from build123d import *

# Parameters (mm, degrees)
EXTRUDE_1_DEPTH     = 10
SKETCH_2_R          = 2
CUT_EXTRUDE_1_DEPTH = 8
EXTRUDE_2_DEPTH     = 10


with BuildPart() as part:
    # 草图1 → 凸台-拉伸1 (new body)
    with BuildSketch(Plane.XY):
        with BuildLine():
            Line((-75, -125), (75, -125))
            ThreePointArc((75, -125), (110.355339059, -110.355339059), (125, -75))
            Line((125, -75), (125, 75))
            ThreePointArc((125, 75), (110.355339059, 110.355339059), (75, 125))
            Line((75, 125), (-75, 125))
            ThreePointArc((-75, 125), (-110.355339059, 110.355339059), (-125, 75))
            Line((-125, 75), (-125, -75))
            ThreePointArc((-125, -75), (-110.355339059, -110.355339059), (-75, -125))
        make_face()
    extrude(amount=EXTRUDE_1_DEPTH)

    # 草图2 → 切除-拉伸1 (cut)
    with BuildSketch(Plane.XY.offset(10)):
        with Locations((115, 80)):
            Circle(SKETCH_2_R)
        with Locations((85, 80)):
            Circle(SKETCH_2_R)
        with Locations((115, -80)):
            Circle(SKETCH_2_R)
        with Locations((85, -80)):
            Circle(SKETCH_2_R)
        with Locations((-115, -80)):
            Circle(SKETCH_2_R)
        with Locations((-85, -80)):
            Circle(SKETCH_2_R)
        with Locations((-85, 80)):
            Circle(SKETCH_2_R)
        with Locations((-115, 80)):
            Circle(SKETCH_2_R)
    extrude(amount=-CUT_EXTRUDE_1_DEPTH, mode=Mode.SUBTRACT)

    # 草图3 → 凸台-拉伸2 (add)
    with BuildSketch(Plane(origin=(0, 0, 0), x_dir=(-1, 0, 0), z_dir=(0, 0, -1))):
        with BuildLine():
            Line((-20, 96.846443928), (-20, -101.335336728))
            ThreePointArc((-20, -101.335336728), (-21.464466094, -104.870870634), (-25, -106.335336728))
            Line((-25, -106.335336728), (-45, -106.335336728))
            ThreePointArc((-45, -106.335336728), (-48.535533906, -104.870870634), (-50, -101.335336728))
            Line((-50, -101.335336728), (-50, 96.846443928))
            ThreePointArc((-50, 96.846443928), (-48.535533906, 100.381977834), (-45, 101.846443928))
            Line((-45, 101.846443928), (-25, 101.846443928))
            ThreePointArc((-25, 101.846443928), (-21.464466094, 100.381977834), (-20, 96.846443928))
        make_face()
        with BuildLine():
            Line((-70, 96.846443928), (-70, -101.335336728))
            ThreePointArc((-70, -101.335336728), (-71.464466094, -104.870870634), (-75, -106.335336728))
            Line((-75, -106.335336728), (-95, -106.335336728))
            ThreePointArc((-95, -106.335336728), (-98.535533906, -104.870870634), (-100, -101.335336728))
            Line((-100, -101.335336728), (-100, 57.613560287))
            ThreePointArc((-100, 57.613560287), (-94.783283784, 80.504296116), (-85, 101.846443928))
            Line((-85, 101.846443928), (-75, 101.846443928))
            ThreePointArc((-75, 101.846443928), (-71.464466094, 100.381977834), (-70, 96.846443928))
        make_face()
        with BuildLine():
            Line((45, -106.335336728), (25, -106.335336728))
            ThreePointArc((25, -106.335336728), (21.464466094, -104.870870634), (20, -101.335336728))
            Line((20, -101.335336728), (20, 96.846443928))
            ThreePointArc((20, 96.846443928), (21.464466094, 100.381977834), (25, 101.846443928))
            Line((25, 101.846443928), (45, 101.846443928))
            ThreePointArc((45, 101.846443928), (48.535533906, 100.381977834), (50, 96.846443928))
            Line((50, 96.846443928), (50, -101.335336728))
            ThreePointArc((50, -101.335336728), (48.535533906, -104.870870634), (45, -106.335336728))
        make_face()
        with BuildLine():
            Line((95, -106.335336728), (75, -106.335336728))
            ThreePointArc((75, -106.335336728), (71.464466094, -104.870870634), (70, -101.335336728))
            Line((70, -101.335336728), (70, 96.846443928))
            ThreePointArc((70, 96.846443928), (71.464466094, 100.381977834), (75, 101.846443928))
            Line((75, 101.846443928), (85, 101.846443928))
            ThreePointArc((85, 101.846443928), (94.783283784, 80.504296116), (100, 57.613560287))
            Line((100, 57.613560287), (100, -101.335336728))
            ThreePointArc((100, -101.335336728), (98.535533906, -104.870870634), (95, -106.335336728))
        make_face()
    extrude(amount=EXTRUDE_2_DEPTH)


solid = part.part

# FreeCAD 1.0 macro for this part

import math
import FreeCAD as App
import Part
import Sketcher
from FreeCAD import Vector
Q = App.Units.Quantity

doc = App.newDocument("Part")
body = doc.addObject("PartDesign::Body", "Body")

sketch1 = doc.addObject("Sketcher::SketchObject", "Sketch")
body.addObject(sketch1)
sketch1.AttachmentSupport = (doc.XY_Plane, [""])
sketch1.MapMode = "FlatFace"
sketch1.addGeometry([
    Part.LineSegment(Vector(-75, -125, 0), Vector(75, -125, 0)),
    Part.ArcOfCircle(Part.Circle(Vector(75, -75, 0), Vector(0, 0, 1), 50), math.radians(-90), math.radians(0)),
    Part.LineSegment(Vector(125, -75, 0), Vector(125, 75, 0)),
    Part.ArcOfCircle(Part.Circle(Vector(75, 75, 0), Vector(0, 0, 1), 50), math.radians(0), math.radians(90)),
    Part.LineSegment(Vector(75, 125, 0), Vector(-75, 125, 0)),
    Part.ArcOfCircle(Part.Circle(Vector(-75, 75, 0), Vector(0, 0, 1), 50), math.radians(90), math.radians(180)),
    Part.LineSegment(Vector(-125, 75, 0), Vector(-125, -75, 0)),
    Part.ArcOfCircle(Part.Circle(Vector(-75, -75, 0), Vector(0, 0, 1), 50), math.radians(-180), math.radians(-90)),
], False)
sketch1.addConstraint([
    Sketcher.Constraint("Tangent", 0, 2, 1, 1),
    Sketcher.Constraint("Tangent", 1, 2, 2, 1),
    Sketcher.Constraint("Tangent", 2, 2, 3, 1),
    Sketcher.Constraint("Tangent", 3, 2, 4, 1),
    Sketcher.Constraint("Tangent", 4, 2, 5, 1),
    Sketcher.Constraint("Tangent", 5, 2, 6, 1),
    Sketcher.Constraint("Tangent", 6, 2, 7, 1),
    Sketcher.Constraint("Tangent", 7, 2, 0, 1),
    Sketcher.Constraint("Horizontal", 0),
    Sketcher.Constraint("Vertical", 2),
    Sketcher.Constraint("Horizontal", 4),
    Sketcher.Constraint("Vertical", 6),
    Sketcher.Constraint("Equal", 1, 3),
    Sketcher.Constraint("Equal", 3, 5),
    Sketcher.Constraint("Equal", 5, 7),
    Sketcher.Constraint("Symmetric", 1, 3, 5, 3, -1, 1),
    Sketcher.Constraint("Equal", 4, 2),
    Sketcher.Constraint("Radius", 1, Q("50 mm")),
    Sketcher.Constraint("DistanceX", 0, 1, 0, 2, Q("150 mm")),
])
pad1 = doc.addObject("PartDesign::Pad", "Pad")
body.addObject(pad1)
pad1.Profile = sketch1
pad1.Length = 10

sketch2 = doc.addObject("Sketcher::SketchObject", "Sketch001")
body.addObject(sketch2)
sketch2.AttachmentSupport = (doc.XY_Plane, [""])
sketch2.MapMode = "FlatFace"
sketch2.AttachmentOffset = App.Placement(Vector(0, 0, 10), App.Rotation())
sketch2.addGeometry([
    Part.Circle(Vector(115, 80, 0), Vector(0, 0, 1), 2),
    Part.Circle(Vector(85, 80, 0), Vector(0, 0, 1), 2),
    Part.Circle(Vector(115, -80, 0), Vector(0, 0, 1), 2),
    Part.Circle(Vector(85, -80, 0), Vector(0, 0, 1), 2),
    Part.Circle(Vector(-115, -80, 0), Vector(0, 0, 1), 2),
    Part.Circle(Vector(-85, -80, 0), Vector(0, 0, 1), 2),
    Part.Circle(Vector(-85, 80, 0), Vector(0, 0, 1), 2),
    Part.Circle(Vector(-115, 80, 0), Vector(0, 0, 1), 2),
], False)
sketch2.addConstraint([
    Sketcher.Constraint("Equal", 0, 1),
    Sketcher.Constraint("Equal", 1, 2),
    Sketcher.Constraint("Equal", 2, 3),
    Sketcher.Constraint("Equal", 3, 4),
    Sketcher.Constraint("Equal", 4, 5),
    Sketcher.Constraint("Equal", 5, 6),
    Sketcher.Constraint("Equal", 6, 7),
    Sketcher.Constraint("Symmetric", 0, 3, 4, 3, -1, 1),
    Sketcher.Constraint("Symmetric", 1, 3, 5, 3, -1, 1),
    Sketcher.Constraint("Symmetric", 3, 3, 6, 3, -1, 1),
    Sketcher.Constraint("Symmetric", 2, 3, 7, 3, -1, 1),
    Sketcher.Constraint("Symmetric", 2, 3, 4, 3, -2),
    Sketcher.Constraint("Symmetric", 3, 3, 5, 3, -2),
    Sketcher.Constraint("Horizontal", 0, 3, 1, 3),
    Sketcher.Constraint("Diameter", 0, Q("4 mm")),
    Sketcher.Constraint("DistanceX", -1, 1, 0, 3, Q("115 mm")),
    Sketcher.Constraint("DistanceY", -1, 1, 0, 3, Q("80 mm")),
    Sketcher.Constraint("DistanceX", -1, 1, 1, 3, Q("85 mm")),
])
pocket1 = doc.addObject("PartDesign::Pocket", "Pocket")
body.addObject(pocket1)
pocket1.Profile = sketch2
pocket1.Length = 8

sketch3 = doc.addObject("Sketcher::SketchObject", "Sketch002")
body.addObject(sketch3)
sketch3.AttachmentSupport = (doc.XY_Plane, [""])
sketch3.MapMode = "FlatFace"
sketch3.addGeometry([
    Part.LineSegment(Vector(20, -101, 0), Vector(20, 97, 0)),
    Part.ArcOfCircle(Part.Circle(Vector(25, 97, 0), Vector(0, 0, 1), 5), math.radians(90), math.radians(180)),
    Part.LineSegment(Vector(25, 102, 0), Vector(45, 102, 0)),
    Part.ArcOfCircle(Part.Circle(Vector(45, 97, 0), Vector(0, 0, 1), 5), math.radians(0), math.radians(90)),
    Part.LineSegment(Vector(50, 97, 0), Vector(50, -101, 0)),
    Part.ArcOfCircle(Part.Circle(Vector(45, -101, 0), Vector(0, 0, 1), 5), math.radians(-90), math.radians(0)),
    Part.LineSegment(Vector(45, -106, 0), Vector(25, -106, 0)),
    Part.ArcOfCircle(Part.Circle(Vector(25, -101, 0), Vector(0, 0, 1), 5), math.radians(180), math.radians(270)),
    Part.LineSegment(Vector(70, -101, 0), Vector(70, 97, 0)),
    Part.ArcOfCircle(Part.Circle(Vector(75, 97, 0), Vector(0, 0, 1), 5), math.radians(90), math.radians(180)),
    Part.LineSegment(Vector(75, 102, 0), Vector(85, 102, 0)),
    Part.ArcOfCircle(Part.Circle(Vector(-13, 44, 0), Vector(0, 0, 1), 114), math.radians(7), math.radians(31)),
    Part.LineSegment(Vector(100, 58, 0), Vector(100, -101, 0)),
    Part.ArcOfCircle(Part.Circle(Vector(95, -101, 0), Vector(0, 0, 1), 5), math.radians(-90), math.radians(0)),
    Part.LineSegment(Vector(95, -106, 0), Vector(75, -106, 0)),
    Part.ArcOfCircle(Part.Circle(Vector(75, -101, 0), Vector(0, 0, 1), 5), math.radians(180), math.radians(270)),
    Part.LineSegment(Vector(-25, -106, 0), Vector(-45, -106, 0)),
    Part.ArcOfCircle(Part.Circle(Vector(-45, -101, 0), Vector(0, 0, 1), 5), math.radians(180), math.radians(270)),
    Part.LineSegment(Vector(-50, -101, 0), Vector(-50, 97, 0)),
    Part.ArcOfCircle(Part.Circle(Vector(-45, 97, 0), Vector(0, 0, 1), 5), math.radians(90), math.radians(180)),
    Part.LineSegment(Vector(-45, 102, 0), Vector(-25, 102, 0)),
    Part.ArcOfCircle(Part.Circle(Vector(-25, 97, 0), Vector(0, 0, 1), 5), math.radians(0), math.radians(90)),
    Part.LineSegment(Vector(-20, 97, 0), Vector(-20, -101, 0)),
    Part.ArcOfCircle(Part.Circle(Vector(-25, -101, 0), Vector(0, 0, 1), 5), math.radians(-90), math.radians(0)),
    Part.LineSegment(Vector(-75, -106, 0), Vector(-95, -106, 0)),
    Part.ArcOfCircle(Part.Circle(Vector(-95, -101, 0), Vector(0, 0, 1), 5), math.radians(180), math.radians(270)),
    Part.LineSegment(Vector(-100, -101, 0), Vector(-100, 58, 0)),
    Part.ArcOfCircle(Part.Circle(Vector(13, 44, 0), Vector(0, 0, 1), 114), math.radians(149), math.radians(173)),
    Part.LineSegment(Vector(-85, 102, 0), Vector(-75, 102, 0)),
    Part.ArcOfCircle(Part.Circle(Vector(-75, 97, 0), Vector(0, 0, 1), 5), math.radians(0), math.radians(90)),
    Part.LineSegment(Vector(-70, 97, 0), Vector(-70, -101, 0)),
    Part.ArcOfCircle(Part.Circle(Vector(-75, -101, 0), Vector(0, 0, 1), 5), math.radians(-90), math.radians(0)),
], False)
sketch3.addConstraint([
    Sketcher.Constraint("Tangent", 0, 2, 1, 2),
    Sketcher.Constraint("Tangent", 1, 1, 2, 1),
    Sketcher.Constraint("Tangent", 2, 2, 3, 2),
    Sketcher.Constraint("Tangent", 3, 1, 4, 1),
    Sketcher.Constraint("Tangent", 4, 2, 5, 2),
    Sketcher.Constraint("Tangent", 5, 1, 6, 1),
    Sketcher.Constraint("Tangent", 6, 2, 7, 2),
    Sketcher.Constraint("Tangent", 7, 1, 0, 1),
    Sketcher.Constraint("Tangent", 8, 2, 9, 2),
    Sketcher.Constraint("Tangent", 9, 1, 10, 1),
    Sketcher.Constraint("Coincident", 10, 2, 11, 2),
    Sketcher.Constraint("Coincident", 11, 1, 12, 1),
    Sketcher.Constraint("Tangent", 12, 2, 13, 2),
    Sketcher.Constraint("Tangent", 13, 1, 14, 1),
    Sketcher.Constraint("Tangent", 14, 2, 15, 2),
    Sketcher.Constraint("Tangent", 15, 1, 8, 1),
    Sketcher.Constraint("Tangent", 16, 2, 17, 2),
    Sketcher.Constraint("Tangent", 17, 1, 18, 1),
    Sketcher.Constraint("Tangent", 18, 2, 19, 2),
    Sketcher.Constraint("Tangent", 19, 1, 20, 1),
    Sketcher.Constraint("Tangent", 20, 2, 21, 2),
    Sketcher.Constraint("Tangent", 21, 1, 22, 1),
    Sketcher.Constraint("Tangent", 22, 2, 23, 2),
    Sketcher.Constraint("Tangent", 23, 1, 16, 1),
    Sketcher.Constraint("Tangent", 24, 2, 25, 2),
    Sketcher.Constraint("Tangent", 25, 1, 26, 1),
    Sketcher.Constraint("Coincident", 26, 2, 27, 2),
    Sketcher.Constraint("Coincident", 27, 1, 28, 1),
    Sketcher.Constraint("Tangent", 28, 2, 29, 2),
    Sketcher.Constraint("Tangent", 29, 1, 30, 1),
    Sketcher.Constraint("Tangent", 30, 2, 31, 2),
    Sketcher.Constraint("Tangent", 31, 1, 24, 1),
    Sketcher.Constraint("Vertical", 0),
    Sketcher.Constraint("Horizontal", 2),
    Sketcher.Constraint("Vertical", 4),
    Sketcher.Constraint("Horizontal", 6),
    Sketcher.Constraint("Vertical", 8),
    Sketcher.Constraint("Horizontal", 10),
    Sketcher.Constraint("Vertical", 12),
    Sketcher.Constraint("Horizontal", 14),
    Sketcher.Constraint("Horizontal", 16),
    Sketcher.Constraint("Vertical", 18),
    Sketcher.Constraint("Horizontal", 20),
    Sketcher.Constraint("Vertical", 22),
    Sketcher.Constraint("Horizontal", 24),
    Sketcher.Constraint("Vertical", 26),
    Sketcher.Constraint("Horizontal", 28),
    Sketcher.Constraint("Vertical", 30),
    Sketcher.Constraint("Equal", 1, 3),
    Sketcher.Constraint("Equal", 3, 5),
    Sketcher.Constraint("Equal", 5, 7),
    Sketcher.Constraint("Equal", 7, 9),
    Sketcher.Constraint("Equal", 9, 13),
    Sketcher.Constraint("Equal", 13, 15),
    Sketcher.Constraint("Equal", 15, 17),
    Sketcher.Constraint("Equal", 17, 19),
    Sketcher.Constraint("Equal", 19, 21),
    Sketcher.Constraint("Equal", 21, 23),
    Sketcher.Constraint("Equal", 23, 25),
    Sketcher.Constraint("Equal", 11, 27),
    Sketcher.Constraint("Equal", 25, 29),
    Sketcher.Constraint("Equal", 29, 31),
    Sketcher.Constraint("Symmetric", 5, 3, 17, 3, -2),
    Sketcher.Constraint("Symmetric", 1, 3, 21, 3, -2),
    Sketcher.Constraint("Symmetric", 13, 3, 25, 3, -2),
    Sketcher.Constraint("Symmetric", 11, 3, 27, 3, -2),
    Sketcher.Constraint("Symmetric", 9, 3, 29, 3, -2),
    Sketcher.Constraint("Horizontal", 3, 3, 9, 3),
    Sketcher.Constraint("Horizontal", 7, 3, 13, 3),
    Sketcher.Constraint("Equal", 6, 14),
    Sketcher.Constraint("Radius", 1, Q("5 mm")),
    Sketcher.Constraint("DistanceX", 2, 1, 2, 2, Q("20 mm")),
    Sketcher.Constraint("DistanceX", 10, 1, 10, 2, Q("10 mm")),
    Sketcher.Constraint("DistanceX", -1, 1, 1, 3, Q("25 mm")),
    Sketcher.Constraint("DistanceX", -1, 1, 9, 3, Q("75 mm")),
    Sketcher.Constraint("Radius", 11, Q("114.309446 mm")),
    Sketcher.Constraint("DistanceY", 0, 1, 0, 2, Q("198.181781 mm")),
    Sketcher.Constraint("DistanceY", 12, 2, 12, 1, Q("158.948897 mm")),
    Sketcher.Constraint("DistanceY", -1, 1, 26, 2, Q("57.61356 mm")),
])
pad2 = doc.addObject("PartDesign::Pad", "Pad001")
body.addObject(pad2)
pad2.Profile = sketch3
pad2.Length = 10
pad2.Reversed = True

doc.recompute()
